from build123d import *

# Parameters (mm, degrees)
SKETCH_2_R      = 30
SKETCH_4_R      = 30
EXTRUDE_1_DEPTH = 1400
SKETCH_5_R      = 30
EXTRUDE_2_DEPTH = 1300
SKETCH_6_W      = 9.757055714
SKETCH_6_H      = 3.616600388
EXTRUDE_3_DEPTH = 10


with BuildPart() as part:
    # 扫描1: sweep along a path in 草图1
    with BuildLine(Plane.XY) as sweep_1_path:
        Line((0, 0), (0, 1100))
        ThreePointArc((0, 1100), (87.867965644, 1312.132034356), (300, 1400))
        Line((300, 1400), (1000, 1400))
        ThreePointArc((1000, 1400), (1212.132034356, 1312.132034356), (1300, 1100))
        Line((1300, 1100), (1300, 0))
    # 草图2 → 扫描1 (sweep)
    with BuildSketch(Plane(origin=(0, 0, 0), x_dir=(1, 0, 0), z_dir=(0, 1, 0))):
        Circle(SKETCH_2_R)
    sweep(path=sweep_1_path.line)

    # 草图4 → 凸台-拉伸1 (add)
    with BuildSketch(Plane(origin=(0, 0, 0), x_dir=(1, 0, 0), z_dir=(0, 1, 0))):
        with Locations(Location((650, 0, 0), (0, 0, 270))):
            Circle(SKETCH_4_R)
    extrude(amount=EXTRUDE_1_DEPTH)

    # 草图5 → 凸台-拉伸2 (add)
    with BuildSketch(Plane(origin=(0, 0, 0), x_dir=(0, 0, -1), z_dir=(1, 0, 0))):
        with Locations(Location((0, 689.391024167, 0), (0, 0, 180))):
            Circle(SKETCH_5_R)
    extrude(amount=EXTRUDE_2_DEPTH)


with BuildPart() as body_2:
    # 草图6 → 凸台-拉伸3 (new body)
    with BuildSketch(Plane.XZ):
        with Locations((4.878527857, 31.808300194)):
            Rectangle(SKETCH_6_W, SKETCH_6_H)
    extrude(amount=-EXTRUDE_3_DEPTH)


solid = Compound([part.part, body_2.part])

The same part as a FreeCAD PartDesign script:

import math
import FreeCAD as App
import Part
import Sketcher
from FreeCAD import Vector

doc = App.newDocument("Part")
body = doc.addObject("PartDesign::Body", "Body")

# Sketch on XZ plane
sketch1 = body.newObject("Sketcher::SketchObject", "Sketch")
sketch1.AttachmentSupport = (doc.getObject("XZ_Plane"), [""])
sketch1.MapMode = "FlatFace"
sketch1.addGeometry(Part.Circle(Vector(0, 0, 0), Vector(0, 0, 1), 30), False)
sketch1.addConstraint([
    Sketcher.Constraint("Coincident", 0, 3, -1, 1),
    Sketcher.Constraint("Diameter", 0, 60.0),
])

# Sketch on XY plane
sketch2 = body.newObject("Sketcher::SketchObject", "Sketch001")
sketch2.AttachmentSupport = (doc.getObject("XY_Plane"), [""])
sketch2.MapMode = "FlatFace"
sketch2.addGeometry([
    Part.LineSegment(Vector(0, 0, 0), Vector(0, 1100, 0)),  # 0
    Part.ArcOfCircle(Part.Circle(Vector(300, 1100, 0), Vector(0, 0, 1), 300), math.radians(90), math.radians(180)),  # 1
    Part.LineSegment(Vector(300, 1400, 0), Vector(1000, 1400, 0)),  # 2
    Part.ArcOfCircle(Part.Circle(Vector(1000, 1100, 0), Vector(0, 0, 1), 300), math.radians(0), math.radians(90)),  # 3
    Part.LineSegment(Vector(1300, 1100, 0), Vector(1300, 0, 0)),  # 4
], False)
sketch2.addConstraint([
    Sketcher.Constraint("Tangent", 0, 2, 1, 2),
    Sketcher.Constraint("Tangent", 1, 1, 2, 1),
    Sketcher.Constraint("Tangent", 2, 2, 3, 2),
    Sketcher.Constraint("Tangent", 3, 1, 4, 1),
    Sketcher.Constraint("Vertical", 0),
    Sketcher.Constraint("Horizontal", 2),
    Sketcher.Constraint("Vertical", 4),
    Sketcher.Constraint("Coincident", 0, 1, -1, 1),
    Sketcher.Constraint("Equal", 1, 3),
    Sketcher.Constraint("PointOnObject", 4, 2, -1),
    Sketcher.Constraint("Radius", 1, 300.0),
    Sketcher.Constraint("DistanceX", 2, 1, 2, 2, 700.0),
    Sketcher.Constraint("DistanceY", 0, 1, 0, 2, 1100.0),
])
doc.recompute()

additivepipe = body.newObject("PartDesign::AdditivePipe", "AdditivePipe")
additivepipe.Profile = sketch1
additivepipe.Spine = (sketch2, ["Edge1", "Edge2", "Edge3", "Edge4", "Edge5"])

# Sketch on XZ plane
sketch3 = body.newObject("Sketcher::SketchObject", "Sketch002")
sketch3.AttachmentSupport = (doc.getObject("XZ_Plane"), [""])
sketch3.MapMode = "FlatFace"
sketch3.addGeometry(Part.Circle(Vector(650, 0, 0), Vector(0, 0, 1), 30), False)
sketch3.addConstraint([
    Sketcher.Constraint("PointOnObject", 0, 3, -1),
    Sketcher.Constraint("Diameter", 0, 60.0),
    Sketcher.Constraint("DistanceX", -1, 1, 0, 3, 650.0),
])
pad1 = body.newObject("PartDesign::Pad", "Pad")
pad1.Profile = sketch3
pad1.Length = 1400
pad1.Reversed = True

# Sketch on YZ plane
sketch4 = body.newObject("Sketcher::SketchObject", "Sketch003")
sketch4.AttachmentSupport = (doc.getObject("YZ_Plane"), [""])
sketch4.MapMode = "FlatFace"
sketch4.addGeometry(Part.Circle(Vector(689.391024, 0, 0), Vector(0, 0, 1), 30), False)
sketch4.addConstraint([
    Sketcher.Constraint("PointOnObject", 0, 3, -1),
    Sketcher.Constraint("Diameter", 0, 60.0),
    Sketcher.Constraint("DistanceX", -1, 1, 0, 3, 689.391024),
])
pad2 = body.newObject("PartDesign::Pad", "Pad001")
pad2.Profile = sketch4
pad2.Length = 1300
body2 = doc.addObject("PartDesign::Body", "Body001")

# Sketch on XZ plane
sketch5 = body2.newObject("Sketcher::SketchObject", "Sketch004")
sketch5.AttachmentSupport = (doc.getObject("XZ_Plane001"), [""])
sketch5.MapMode = "FlatFace"
sketch5.addGeometry([
    Part.LineSegment(Vector(0, 33.6166, 0), Vector(0, 30, 0)),
    Part.LineSegment(Vector(0, 30, 0), Vector(9.757056, 30, 0)),
    Part.LineSegment(Vector(9.757056, 30, 0), Vector(9.757056, 33.6166, 0)),
    Part.LineSegment(Vector(9.757056, 33.6166, 0), Vector(0, 33.6166, 0)),
], False)
sketch5.addConstraint([
    Sketcher.Constraint("Coincident", 0, 2, 1, 1),
    Sketcher.Constraint("Coincident", 1, 2, 2, 1),
    Sketcher.Constraint("Coincident", 2, 2, 3, 1),
    Sketcher.Constraint("Coincident", 3, 2, 0, 1),
    Sketcher.Constraint("Vertical", 0),
    Sketcher.Constraint("Horizontal", 1),
    Sketcher.Constraint("Vertical", 2),
    Sketcher.Constraint("Horizontal", 3),
    Sketcher.Constraint("PointOnObject", 0, 2, -2),
    Sketcher.Constraint("DistanceY", -1, 1, 0, 2, 30.0),
    Sketcher.Constraint("DistanceY", 0, 2, 0, 1, 3.6166),
    Sketcher.Constraint("DistanceX", 1, 1, 1, 2, 9.757056),
])
pad3 = body2.newObject("PartDesign::Pad", "Pad002")
pad3.Profile = sketch5
pad3.Length = 10
pad3.Reversed = True

doc.recompute()
